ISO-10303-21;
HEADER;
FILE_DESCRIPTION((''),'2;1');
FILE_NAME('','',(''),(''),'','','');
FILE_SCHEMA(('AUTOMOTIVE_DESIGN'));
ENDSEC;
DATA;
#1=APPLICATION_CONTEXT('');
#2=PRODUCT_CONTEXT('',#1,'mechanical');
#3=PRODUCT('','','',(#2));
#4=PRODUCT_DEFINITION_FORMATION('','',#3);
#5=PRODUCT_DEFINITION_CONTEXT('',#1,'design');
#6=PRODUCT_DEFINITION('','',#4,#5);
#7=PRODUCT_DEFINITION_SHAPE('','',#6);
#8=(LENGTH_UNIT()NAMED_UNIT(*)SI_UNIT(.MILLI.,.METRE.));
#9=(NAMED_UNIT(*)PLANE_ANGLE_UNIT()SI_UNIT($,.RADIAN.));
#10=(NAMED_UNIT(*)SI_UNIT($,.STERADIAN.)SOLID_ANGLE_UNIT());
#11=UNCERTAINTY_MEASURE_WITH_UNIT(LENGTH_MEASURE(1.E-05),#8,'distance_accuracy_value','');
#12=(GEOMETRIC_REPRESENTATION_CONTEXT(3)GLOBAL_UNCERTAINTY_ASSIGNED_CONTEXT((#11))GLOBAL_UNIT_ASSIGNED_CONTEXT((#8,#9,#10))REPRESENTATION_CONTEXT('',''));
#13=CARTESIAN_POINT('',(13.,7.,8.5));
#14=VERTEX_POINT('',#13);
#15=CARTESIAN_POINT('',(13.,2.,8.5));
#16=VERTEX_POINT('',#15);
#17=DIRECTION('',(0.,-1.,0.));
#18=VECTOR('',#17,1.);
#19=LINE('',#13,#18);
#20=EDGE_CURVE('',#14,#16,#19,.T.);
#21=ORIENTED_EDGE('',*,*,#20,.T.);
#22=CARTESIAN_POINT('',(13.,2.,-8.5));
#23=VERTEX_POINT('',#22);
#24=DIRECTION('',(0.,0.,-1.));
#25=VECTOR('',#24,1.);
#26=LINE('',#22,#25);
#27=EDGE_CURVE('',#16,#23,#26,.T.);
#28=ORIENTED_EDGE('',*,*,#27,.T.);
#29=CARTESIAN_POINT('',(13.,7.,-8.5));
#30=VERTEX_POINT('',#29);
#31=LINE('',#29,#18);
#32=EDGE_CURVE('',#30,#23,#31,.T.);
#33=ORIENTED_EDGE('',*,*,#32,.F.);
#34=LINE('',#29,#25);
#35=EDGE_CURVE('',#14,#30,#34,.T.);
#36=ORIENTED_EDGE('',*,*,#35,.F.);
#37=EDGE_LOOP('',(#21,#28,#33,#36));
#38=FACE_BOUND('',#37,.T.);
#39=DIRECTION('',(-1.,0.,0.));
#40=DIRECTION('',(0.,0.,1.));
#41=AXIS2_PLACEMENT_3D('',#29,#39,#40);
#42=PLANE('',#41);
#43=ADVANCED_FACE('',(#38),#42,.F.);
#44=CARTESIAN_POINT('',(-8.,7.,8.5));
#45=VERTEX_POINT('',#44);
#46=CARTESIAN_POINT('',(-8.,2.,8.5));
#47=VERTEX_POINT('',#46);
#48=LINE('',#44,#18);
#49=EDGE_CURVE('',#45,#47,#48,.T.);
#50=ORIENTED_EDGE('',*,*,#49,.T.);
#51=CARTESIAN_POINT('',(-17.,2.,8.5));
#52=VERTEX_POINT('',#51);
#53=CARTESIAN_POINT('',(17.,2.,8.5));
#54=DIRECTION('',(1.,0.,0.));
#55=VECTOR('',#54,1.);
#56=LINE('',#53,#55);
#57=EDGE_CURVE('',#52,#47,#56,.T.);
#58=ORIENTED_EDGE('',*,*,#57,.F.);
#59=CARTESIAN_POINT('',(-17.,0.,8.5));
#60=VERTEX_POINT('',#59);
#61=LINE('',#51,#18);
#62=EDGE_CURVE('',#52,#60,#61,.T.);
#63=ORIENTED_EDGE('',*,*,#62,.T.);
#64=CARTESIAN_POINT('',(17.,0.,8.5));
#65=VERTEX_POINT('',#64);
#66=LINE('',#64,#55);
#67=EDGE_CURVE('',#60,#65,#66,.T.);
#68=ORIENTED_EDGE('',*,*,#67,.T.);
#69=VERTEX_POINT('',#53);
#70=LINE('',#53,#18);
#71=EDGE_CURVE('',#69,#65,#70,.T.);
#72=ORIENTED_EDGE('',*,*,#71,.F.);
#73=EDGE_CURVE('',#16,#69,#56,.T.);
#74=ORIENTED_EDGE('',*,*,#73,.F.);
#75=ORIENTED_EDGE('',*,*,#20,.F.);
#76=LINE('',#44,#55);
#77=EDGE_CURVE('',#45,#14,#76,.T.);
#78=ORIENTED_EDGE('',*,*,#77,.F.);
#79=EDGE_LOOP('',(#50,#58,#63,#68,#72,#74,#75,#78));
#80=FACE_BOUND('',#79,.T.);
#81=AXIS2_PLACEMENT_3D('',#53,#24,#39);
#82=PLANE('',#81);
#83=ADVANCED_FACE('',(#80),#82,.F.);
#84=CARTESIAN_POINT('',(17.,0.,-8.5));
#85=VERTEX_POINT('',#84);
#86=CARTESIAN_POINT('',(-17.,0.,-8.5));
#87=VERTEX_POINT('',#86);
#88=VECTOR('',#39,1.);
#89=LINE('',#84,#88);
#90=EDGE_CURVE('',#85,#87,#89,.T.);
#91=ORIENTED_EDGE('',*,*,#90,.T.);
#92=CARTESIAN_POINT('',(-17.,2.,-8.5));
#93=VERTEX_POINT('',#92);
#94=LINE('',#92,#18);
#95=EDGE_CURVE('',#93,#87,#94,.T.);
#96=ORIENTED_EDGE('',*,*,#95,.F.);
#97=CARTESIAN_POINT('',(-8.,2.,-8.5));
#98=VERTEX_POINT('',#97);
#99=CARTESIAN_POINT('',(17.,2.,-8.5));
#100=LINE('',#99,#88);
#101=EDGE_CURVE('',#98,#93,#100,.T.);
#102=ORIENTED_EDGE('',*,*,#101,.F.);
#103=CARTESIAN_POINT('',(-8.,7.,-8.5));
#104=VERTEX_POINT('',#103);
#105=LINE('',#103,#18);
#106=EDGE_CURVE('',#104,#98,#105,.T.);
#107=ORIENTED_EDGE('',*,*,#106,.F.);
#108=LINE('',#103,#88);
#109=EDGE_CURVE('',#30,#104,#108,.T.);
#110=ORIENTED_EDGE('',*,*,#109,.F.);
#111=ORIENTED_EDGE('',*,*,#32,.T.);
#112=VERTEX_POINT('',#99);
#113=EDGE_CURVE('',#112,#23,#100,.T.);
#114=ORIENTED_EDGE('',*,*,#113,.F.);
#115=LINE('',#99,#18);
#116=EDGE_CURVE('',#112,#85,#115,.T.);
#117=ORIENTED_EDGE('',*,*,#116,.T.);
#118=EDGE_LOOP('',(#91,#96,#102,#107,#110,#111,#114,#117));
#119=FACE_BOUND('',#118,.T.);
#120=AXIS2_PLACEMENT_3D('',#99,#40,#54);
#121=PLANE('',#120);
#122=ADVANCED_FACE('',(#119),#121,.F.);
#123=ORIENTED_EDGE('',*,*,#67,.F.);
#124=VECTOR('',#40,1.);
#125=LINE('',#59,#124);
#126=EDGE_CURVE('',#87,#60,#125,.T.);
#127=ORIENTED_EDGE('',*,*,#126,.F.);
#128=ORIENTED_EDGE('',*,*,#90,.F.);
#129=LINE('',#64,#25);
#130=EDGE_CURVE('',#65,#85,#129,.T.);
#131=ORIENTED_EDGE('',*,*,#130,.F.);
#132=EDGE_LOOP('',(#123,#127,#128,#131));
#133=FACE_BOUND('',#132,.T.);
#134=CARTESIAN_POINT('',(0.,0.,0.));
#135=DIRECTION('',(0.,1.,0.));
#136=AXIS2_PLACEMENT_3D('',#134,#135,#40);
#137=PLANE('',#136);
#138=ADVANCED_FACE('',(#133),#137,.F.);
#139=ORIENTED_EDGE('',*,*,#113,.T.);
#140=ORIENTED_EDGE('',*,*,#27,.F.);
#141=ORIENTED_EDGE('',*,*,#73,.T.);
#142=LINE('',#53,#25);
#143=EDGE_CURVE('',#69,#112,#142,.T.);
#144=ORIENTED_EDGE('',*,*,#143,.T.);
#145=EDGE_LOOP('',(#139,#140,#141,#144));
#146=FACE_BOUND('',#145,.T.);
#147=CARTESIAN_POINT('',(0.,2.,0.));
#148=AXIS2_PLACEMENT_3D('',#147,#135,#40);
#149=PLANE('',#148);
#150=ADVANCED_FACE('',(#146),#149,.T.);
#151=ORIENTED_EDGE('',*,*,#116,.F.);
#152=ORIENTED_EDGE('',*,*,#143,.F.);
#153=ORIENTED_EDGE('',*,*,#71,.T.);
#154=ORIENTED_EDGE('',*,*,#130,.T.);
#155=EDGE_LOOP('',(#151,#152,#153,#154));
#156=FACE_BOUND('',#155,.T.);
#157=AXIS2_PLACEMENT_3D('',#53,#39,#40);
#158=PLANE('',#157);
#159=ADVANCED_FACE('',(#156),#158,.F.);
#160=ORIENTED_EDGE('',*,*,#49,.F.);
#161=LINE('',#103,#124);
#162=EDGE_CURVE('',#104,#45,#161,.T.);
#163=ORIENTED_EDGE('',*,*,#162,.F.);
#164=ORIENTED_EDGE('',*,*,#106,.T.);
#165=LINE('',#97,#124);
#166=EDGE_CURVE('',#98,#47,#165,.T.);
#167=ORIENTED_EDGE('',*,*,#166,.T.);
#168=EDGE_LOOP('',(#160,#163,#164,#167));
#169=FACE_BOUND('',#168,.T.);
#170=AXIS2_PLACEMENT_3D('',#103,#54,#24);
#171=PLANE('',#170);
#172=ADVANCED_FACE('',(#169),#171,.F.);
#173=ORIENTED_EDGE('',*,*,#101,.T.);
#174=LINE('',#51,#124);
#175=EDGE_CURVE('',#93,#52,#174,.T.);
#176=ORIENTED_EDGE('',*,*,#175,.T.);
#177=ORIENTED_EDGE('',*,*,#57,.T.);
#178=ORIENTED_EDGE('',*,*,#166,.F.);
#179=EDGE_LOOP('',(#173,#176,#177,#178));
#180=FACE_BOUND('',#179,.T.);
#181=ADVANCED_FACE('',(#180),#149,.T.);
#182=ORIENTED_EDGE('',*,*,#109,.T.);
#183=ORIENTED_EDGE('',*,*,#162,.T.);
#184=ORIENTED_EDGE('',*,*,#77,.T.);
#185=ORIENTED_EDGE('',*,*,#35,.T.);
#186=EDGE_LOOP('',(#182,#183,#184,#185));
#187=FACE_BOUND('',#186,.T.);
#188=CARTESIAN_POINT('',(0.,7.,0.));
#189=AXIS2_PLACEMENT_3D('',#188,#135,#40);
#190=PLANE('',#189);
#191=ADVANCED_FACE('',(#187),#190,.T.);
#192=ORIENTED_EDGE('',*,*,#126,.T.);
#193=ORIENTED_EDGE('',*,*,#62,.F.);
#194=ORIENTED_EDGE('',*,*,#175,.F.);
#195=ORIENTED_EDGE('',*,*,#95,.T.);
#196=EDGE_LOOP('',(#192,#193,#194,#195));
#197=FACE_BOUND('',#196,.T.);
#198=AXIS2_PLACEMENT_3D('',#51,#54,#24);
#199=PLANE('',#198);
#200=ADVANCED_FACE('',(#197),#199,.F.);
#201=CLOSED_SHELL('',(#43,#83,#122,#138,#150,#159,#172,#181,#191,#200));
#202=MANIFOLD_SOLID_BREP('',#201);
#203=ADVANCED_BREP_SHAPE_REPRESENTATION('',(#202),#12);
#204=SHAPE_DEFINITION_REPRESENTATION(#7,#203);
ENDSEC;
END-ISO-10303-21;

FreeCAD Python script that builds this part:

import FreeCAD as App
import Part
import Sketcher

V = App.Vector


def add_polygon(sketch, points):
    """Adds a closed chain of lines whose ends are joined by coincident constraints."""
    first, n = sketch.GeometryCount, len(points)
    for a, b in zip(points, points[1:] + points[:1]):
        sketch.addGeometry(Part.LineSegment(App.Vector(*a, 0), App.Vector(*b, 0)), False)
    for i in range(n):
        sketch.addConstraint(Sketcher.Constraint("Coincident", first + i, 2, first + (i + 1) % n, 1))

doc = App.newDocument("Part")
params = doc.addObject("Spreadsheet::Sheet", "Params")
for row, (alias, value) in enumerate([
    ("sketch1_width", "34 mm"),
    ("sketch1_height", "17 mm"),
    ("pad1_length", "2 mm"),
    ("sketch2_width", "21 mm"),
    ("sketch2_height", "17 mm"),
    ("pad2_length", "5 mm"),
], start=1):
    params.set(f"A{row}", alias)
    params.set(f"B{row}", "=" + value)
    params.setAlias(f"B{row}", alias)

body = doc.addObject("PartDesign::Body", "Body")

# Sketch on XZ plane
sketch1 = body.newObject("Sketcher::SketchObject", "Sketch")
sketch1.AttachmentSupport = (doc.getObject("XZ_Plane"), [""])
sketch1.MapMode = "FlatFace"
add_polygon(sketch1, [(-17, -8), (-17, 8), (17, 8), (17, -8)])  # lines 0-3
sketch1.addConstraint([
    Sketcher.Constraint("Vertical", 0),
    Sketcher.Constraint("Horizontal", 1),
    Sketcher.Constraint("Vertical", 2),
    Sketcher.Constraint("Horizontal", 3),
    Sketcher.Constraint("Symmetric", 0, 2, 2, 2, -1, 1),
    Sketcher.Constraint("DistanceX", 1, 1, 1, 2, 34.0),
    Sketcher.Constraint("DistanceY", 0, 1, 0, 2, 17.0),
])
sketch1.setExpression("Constraints[9]", "Params.sketch1_width")
sketch1.setExpression("Constraints[10]", "Params.sketch1_height")
pad1 = body.newObject("PartDesign::Pad", "Pad")
pad1.Profile = sketch1
pad1.setExpression("Length", "Params.pad1_length")
pad1.Reversed = True

# Sketch on XZ plane
sketch2 = body.newObject("Sketcher::SketchObject", "Sketch001")
sketch2.AttachmentSupport = (doc.getObject("XZ_Plane"), [""])
sketch2.MapMode = "FlatFace"
sketch2.AttachmentOffset = App.Placement(V(0, 0, -2), App.Rotation())
add_polygon(sketch2, [(-8, -8), (-8, 8), (13, 8), (13, -8)])  # lines 0-3
sketch2.addConstraint([
    Sketcher.Constraint("Vertical", 0),
    Sketcher.Constraint("Horizontal", 1),
    Sketcher.Constraint("Vertical", 2),
    Sketcher.Constraint("Horizontal", 3),
    Sketcher.Constraint("DistanceX", 1, 1, 1, 2, 21.0),
    Sketcher.Constraint("DistanceY", 0, 1, 0, 2, 17.0),
    Sketcher.Constraint("DistanceX", 0, 2, -1, 1, 8.0),
    Sketcher.Constraint("DistanceY", -1, 1, 0, 2, 8.5),
])
sketch2.setExpression("Constraints[8]", "Params.sketch2_width")
sketch2.setExpression("Constraints[9]", "Params.sketch2_height")
pad2 = body.newObject("PartDesign::Pad", "Pad001")
pad2.Profile = sketch2
pad2.setExpression("Length", "Params.pad2_length")
pad2.Reversed = True

doc.recompute()
